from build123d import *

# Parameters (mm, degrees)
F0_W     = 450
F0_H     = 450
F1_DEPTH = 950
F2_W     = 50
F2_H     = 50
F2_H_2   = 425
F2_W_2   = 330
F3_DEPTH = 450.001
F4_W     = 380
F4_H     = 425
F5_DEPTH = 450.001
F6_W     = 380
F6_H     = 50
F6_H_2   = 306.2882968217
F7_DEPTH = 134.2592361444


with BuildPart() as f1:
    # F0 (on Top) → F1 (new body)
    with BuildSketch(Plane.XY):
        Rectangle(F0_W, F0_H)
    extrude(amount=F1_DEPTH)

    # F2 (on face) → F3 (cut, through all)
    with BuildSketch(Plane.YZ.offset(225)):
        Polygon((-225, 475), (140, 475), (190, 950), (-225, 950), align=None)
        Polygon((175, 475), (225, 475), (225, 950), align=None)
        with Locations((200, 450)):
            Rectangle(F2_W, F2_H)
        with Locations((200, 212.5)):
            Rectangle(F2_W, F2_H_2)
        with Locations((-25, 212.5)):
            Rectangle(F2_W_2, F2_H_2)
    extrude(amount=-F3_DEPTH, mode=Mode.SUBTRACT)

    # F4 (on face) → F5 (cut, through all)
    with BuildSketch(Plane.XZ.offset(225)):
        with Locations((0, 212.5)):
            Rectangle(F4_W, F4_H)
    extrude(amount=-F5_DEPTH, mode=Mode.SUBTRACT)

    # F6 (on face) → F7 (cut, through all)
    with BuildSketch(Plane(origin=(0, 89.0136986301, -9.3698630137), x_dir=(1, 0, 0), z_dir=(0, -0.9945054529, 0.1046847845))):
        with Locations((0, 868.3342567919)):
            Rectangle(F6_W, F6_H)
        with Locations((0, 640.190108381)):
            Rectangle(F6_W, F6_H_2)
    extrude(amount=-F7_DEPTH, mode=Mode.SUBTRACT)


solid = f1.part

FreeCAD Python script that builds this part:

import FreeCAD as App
import Part
import Sketcher

V = App.Vector

doc = App.newDocument("Part")
body = doc.addObject("PartDesign::Body", "Body")

sketch1 = body.newObject("Sketcher::SketchObject", "Sketch")
sketch1.AttachmentSupport = (doc.getObject("XY_Plane"), [""])
sketch1.MapMode = "FlatFace"
sketch1.addGeometry([
    Part.LineSegment(V(-225, 225, 0), V(-225, -225, 0)),
    Part.LineSegment(V(-225, -225, 0), V(225, -225, 0)),
    Part.LineSegment(V(225, -225, 0), V(225, 225, 0)),
    Part.LineSegment(V(225, 225, 0), V(-225, 225, 0)),
], False)
sketch1.addConstraint([
    Sketcher.Constraint("Coincident", 0, 2, 1, 1),
    Sketcher.Constraint("Coincident", 1, 2, 2, 1),
    Sketcher.Constraint("Coincident", 2, 2, 3, 1),
    Sketcher.Constraint("Coincident", 3, 2, 0, 1),
    Sketcher.Constraint("Vertical", 0),
    Sketcher.Constraint("Horizontal", 1),
    Sketcher.Constraint("Vertical", 2),
    Sketcher.Constraint("Horizontal", 3),
    Sketcher.Constraint("Symmetric", 0, 2, 2, 2, -1, 1),
    Sketcher.Constraint("Equal", 3, 0),
    Sketcher.Constraint("DistanceX", 1, 1, 1, 2, 450.0),
])
pad1 = body.newObject("PartDesign::Pad", "Pad")
pad1.Profile = sketch1
pad1.Length = 950

sketch2 = body.newObject("Sketcher::SketchObject", "Sketch001")
sketch2.AttachmentSupport = (doc.getObject("YZ_Plane"), [""])
sketch2.MapMode = "FlatFace"
sketch2.AttachmentOffset = App.Placement(V(0, 0, 225), App.Rotation())
sketch2.addGeometry([
    Part.LineSegment(V(-225, 475, 0), V(140, 475, 0)),
    Part.LineSegment(V(140, 475, 0), V(190, 950, 0)),
    Part.LineSegment(V(190, 950, 0), V(-225, 950, 0)),
    Part.LineSegment(V(-225, 950, 0), V(-225, 475, 0)),
    Part.LineSegment(V(225, 950, 0), V(175, 475, 0)),
    Part.LineSegment(V(175, 475, 0), V(175, 0, 0)),
    Part.LineSegment(V(175, 0, 0), V(225, 0, 0)),
    Part.LineSegment(V(225, 0, 0), V(225, 950, 0)),
    Part.LineSegment(V(-190, 425, 0), V(-190, 0, 0)),
    Part.LineSegment(V(-190, 0, 0), V(140, 0, 0)),
    Part.LineSegment(V(140, 0, 0), V(140, 425, 0)),
    Part.LineSegment(V(140, 425, 0), V(-190, 425, 0)),
], False)
sketch2.addConstraint([
    Sketcher.Constraint("Coincident", 0, 2, 1, 1),
    Sketcher.Constraint("Coincident", 1, 2, 2, 1),
    Sketcher.Constraint("Coincident", 2, 2, 3, 1),
    Sketcher.Constraint("Coincident", 3, 2, 0, 1),
    Sketcher.Constraint("Coincident", 4, 2, 5, 1),
    Sketcher.Constraint("Coincident", 5, 2, 6, 1),
    Sketcher.Constraint("Coincident", 6, 2, 7, 1),
    Sketcher.Constraint("Coincident", 7, 2, 4, 1),
    Sketcher.Constraint("Coincident", 8, 2, 9, 1),
    Sketcher.Constraint("Coincident", 9, 2, 10, 1),
    Sketcher.Constraint("Coincident", 10, 2, 11, 1),
    Sketcher.Constraint("Coincident", 11, 2, 8, 1),
    Sketcher.Constraint("Horizontal", 0),
    Sketcher.Constraint("Horizontal", 2),
    Sketcher.Constraint("Vertical", 3),
    Sketcher.Constraint("Vertical", 5),
    Sketcher.Constraint("Horizontal", 6),
    Sketcher.Constraint("Vertical", 7),
    Sketcher.Constraint("Vertical", 8),
    Sketcher.Constraint("Horizontal", 9),
    Sketcher.Constraint("Vertical", 10),
    Sketcher.Constraint("Horizontal", 11),
    Sketcher.Constraint("Symmetric", 2, 2, 7, 2, -2),
    Sketcher.Constraint("PointOnObject", 5, 2, -1),
    Sketcher.Constraint("PointOnObject", 8, 2, -1),
    Sketcher.Constraint("Parallel", 1, 4),
    Sketcher.Constraint("Horizontal", 3, 2, 4, 2),
    Sketcher.Constraint("Vertical", 0, 2, 9, 2),
    Sketcher.Constraint("Equal", 3, 5),
    Sketcher.Constraint("DistanceX", 0, 1, 0, 2, 365.0),
    Sketcher.Constraint("DistanceX", 2, 2, 2, 1, 415.0),
    Sketcher.Constraint("DistanceX", 9, 1, 9, 2, 330.0),
    Sketcher.Constraint("DistanceY", 3, 2, 3, 1, 475.0),
    Sketcher.Constraint("DistanceY", 8, 2, 8, 1, 425.0),
    Sketcher.Constraint("DistanceX", -1, 1, 0, 2, 140.0),
])
pocket1 = body.newObject("PartDesign::Pocket", "Pocket")
pocket1.Profile = sketch2
pocket1.Type = "ThroughAll"

sketch3 = body.newObject("Sketcher::SketchObject", "Sketch002")
sketch3.AttachmentSupport = (doc.getObject("XZ_Plane"), [""])
sketch3.MapMode = "FlatFace"
sketch3.AttachmentOffset = App.Placement(V(0, 0, 225), App.Rotation())
sketch3.addGeometry([
    Part.LineSegment(V(-190, 425, 0), V(-190, 0, 0)),
    Part.LineSegment(V(-190, 0, 0), V(190, 0, 0)),
    Part.LineSegment(V(190, 0, 0), V(190, 425, 0)),
    Part.LineSegment(V(190, 425, 0), V(-190, 425, 0)),
], False)
sketch3.addConstraint([
    Sketcher.Constraint("Coincident", 0, 2, 1, 1),
    Sketcher.Constraint("Coincident", 1, 2, 2, 1),
    Sketcher.Constraint("Coincident", 2, 2, 3, 1),
    Sketcher.Constraint("Coincident", 3, 2, 0, 1),
    Sketcher.Constraint("Vertical", 0),
    Sketcher.Constraint("Horizontal", 1),
    Sketcher.Constraint("Vertical", 2),
    Sketcher.Constraint("Horizontal", 3),
    Sketcher.Constraint("Symmetric", 0, 2, 1, 2, -1, 1),
    Sketcher.Constraint("DistanceX", 1, 1, 1, 2, 380.0),
    Sketcher.Constraint("DistanceY", 0, 2, 0, 1, 425.0),
])
pocket2 = body.newObject("PartDesign::Pocket", "Pocket001")
pocket2.Profile = sketch3
pocket2.Type = "ThroughAll"

sketch4 = body.newObject("Sketcher::SketchObject", "Sketch003")
sketch4.Placement = App.Placement(V(0, 89.013699, -9.369863), App.Rotation(V(1, 0, 0), V(0, 0.104684785, 0.994505453), V(0, -0.994505453, 0.104684785), "ZXY"))
sketch4.addGeometry([
    Part.LineSegment(V(-190, 893, 0), V(-190, 843, 0)),
    Part.LineSegment(V(-190, 843, 0), V(190, 843, 0)),
    Part.LineSegment(V(190, 843, 0), V(190, 893, 0)),
    Part.LineSegment(V(190, 893, 0), V(-190, 893, 0)),
    Part.LineSegment(V(-190, 793, 0), V(-190, 487, 0)),
    Part.LineSegment(V(-190, 487, 0), V(190, 487, 0)),
    Part.LineSegment(V(190, 487, 0), V(190, 793, 0)),
    Part.LineSegment(V(190, 793, 0), V(-190, 793, 0)),
], False)
sketch4.addConstraint([
    Sketcher.Constraint("Coincident", 0, 2, 1, 1),
    Sketcher.Constraint("Coincident", 1, 2, 2, 1),
    Sketcher.Constraint("Coincident", 2, 2, 3, 1),
    Sketcher.Constraint("Coincident", 3, 2, 0, 1),
    Sketcher.Constraint("Coincident", 4, 2, 5, 1),
    Sketcher.Constraint("Coincident", 5, 2, 6, 1),
    Sketcher.Constraint("Coincident", 6, 2, 7, 1),
    Sketcher.Constraint("Coincident", 7, 2, 4, 1),
    Sketcher.Constraint("Vertical", 0),
    Sketcher.Constraint("Horizontal", 1),
    Sketcher.Constraint("Vertical", 2),
    Sketcher.Constraint("Horizontal", 3),
    Sketcher.Constraint("Vertical", 4),
    Sketcher.Constraint("Horizontal", 5),
    Sketcher.Constraint("Vertical", 6),
    Sketcher.Constraint("Horizontal", 7),
    Sketcher.Constraint("Vertical", 3, 2, 4, 2),
    Sketcher.Constraint("Vertical", 2, 2, 5, 2),
    Sketcher.Constraint("DistanceX", 1, 1, 1, 2, 380.0),
    Sketcher.Constraint("DistanceY", 0, 2, 0, 1, 50.0),
    Sketcher.Constraint("DistanceX", 0, 2, -1, 1, 190.0),
    Sketcher.Constraint("DistanceY", 6, 2, 1, 2, 50.0),
    Sketcher.Constraint("DistanceY", 4, 2, 4, 1, 306.288297),
    Sketcher.Constraint("DistanceY", -1, 1, 4, 2, 487.04596),
])
pocket3 = body.newObject("PartDesign::Pocket", "Pocket002")
pocket3.Profile = sketch4
pocket3.Type = "ThroughAll"

doc.recompute()
